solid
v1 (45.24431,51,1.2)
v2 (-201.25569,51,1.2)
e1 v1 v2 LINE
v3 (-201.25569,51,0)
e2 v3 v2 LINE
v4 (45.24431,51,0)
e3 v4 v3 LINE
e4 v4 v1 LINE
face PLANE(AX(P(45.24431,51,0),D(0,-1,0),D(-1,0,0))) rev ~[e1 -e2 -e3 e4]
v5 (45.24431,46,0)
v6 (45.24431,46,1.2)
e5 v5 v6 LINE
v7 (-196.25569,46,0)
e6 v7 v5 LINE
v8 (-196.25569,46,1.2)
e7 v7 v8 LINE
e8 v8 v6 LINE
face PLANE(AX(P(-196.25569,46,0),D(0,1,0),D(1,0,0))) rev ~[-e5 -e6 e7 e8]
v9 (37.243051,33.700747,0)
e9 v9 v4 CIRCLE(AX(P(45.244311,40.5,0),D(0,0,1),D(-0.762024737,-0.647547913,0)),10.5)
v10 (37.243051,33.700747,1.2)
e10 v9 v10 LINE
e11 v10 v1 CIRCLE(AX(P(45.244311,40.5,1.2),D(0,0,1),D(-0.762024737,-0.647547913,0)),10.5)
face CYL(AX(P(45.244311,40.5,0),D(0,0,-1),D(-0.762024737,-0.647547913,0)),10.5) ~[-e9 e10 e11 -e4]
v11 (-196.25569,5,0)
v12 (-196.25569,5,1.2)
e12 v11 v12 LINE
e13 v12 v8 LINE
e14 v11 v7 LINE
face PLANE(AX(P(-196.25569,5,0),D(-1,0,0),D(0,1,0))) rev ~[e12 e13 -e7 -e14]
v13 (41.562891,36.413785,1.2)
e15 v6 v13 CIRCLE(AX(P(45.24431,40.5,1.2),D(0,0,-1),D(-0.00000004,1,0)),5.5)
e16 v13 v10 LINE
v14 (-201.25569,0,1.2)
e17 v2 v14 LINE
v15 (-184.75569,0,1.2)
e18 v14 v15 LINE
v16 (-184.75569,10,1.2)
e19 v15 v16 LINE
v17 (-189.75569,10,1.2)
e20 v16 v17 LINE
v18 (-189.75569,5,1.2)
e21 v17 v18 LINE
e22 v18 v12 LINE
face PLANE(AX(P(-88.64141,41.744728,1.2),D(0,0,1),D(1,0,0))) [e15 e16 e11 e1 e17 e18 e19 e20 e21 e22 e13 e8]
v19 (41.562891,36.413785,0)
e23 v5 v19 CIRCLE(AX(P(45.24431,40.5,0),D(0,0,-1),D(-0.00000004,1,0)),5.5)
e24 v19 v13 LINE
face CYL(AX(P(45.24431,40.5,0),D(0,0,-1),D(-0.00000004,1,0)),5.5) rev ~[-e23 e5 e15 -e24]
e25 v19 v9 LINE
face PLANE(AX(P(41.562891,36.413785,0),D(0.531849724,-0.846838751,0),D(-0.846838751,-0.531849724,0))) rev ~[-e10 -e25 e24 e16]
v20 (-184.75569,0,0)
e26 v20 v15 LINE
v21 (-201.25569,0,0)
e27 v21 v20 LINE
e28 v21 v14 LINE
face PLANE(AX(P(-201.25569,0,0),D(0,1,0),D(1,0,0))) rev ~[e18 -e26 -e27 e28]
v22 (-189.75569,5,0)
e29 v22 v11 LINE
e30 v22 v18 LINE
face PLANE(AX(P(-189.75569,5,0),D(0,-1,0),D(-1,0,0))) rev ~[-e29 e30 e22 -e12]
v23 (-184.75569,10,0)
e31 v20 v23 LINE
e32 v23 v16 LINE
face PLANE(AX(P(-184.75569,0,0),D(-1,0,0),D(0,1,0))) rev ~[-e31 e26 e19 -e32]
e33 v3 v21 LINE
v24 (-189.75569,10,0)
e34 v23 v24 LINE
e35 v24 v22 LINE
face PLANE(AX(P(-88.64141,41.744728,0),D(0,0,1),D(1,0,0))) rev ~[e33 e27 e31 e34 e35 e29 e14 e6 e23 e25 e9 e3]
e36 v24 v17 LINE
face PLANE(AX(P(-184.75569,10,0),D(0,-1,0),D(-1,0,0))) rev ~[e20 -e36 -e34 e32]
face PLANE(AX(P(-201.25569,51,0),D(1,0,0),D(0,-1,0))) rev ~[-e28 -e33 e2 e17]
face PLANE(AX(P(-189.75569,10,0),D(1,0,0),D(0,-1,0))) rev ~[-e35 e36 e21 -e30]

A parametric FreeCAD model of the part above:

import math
import FreeCAD as App
import Part
import Sketcher
from FreeCAD import Vector

doc = App.newDocument("Part")
params = doc.addObject("Spreadsheet::Sheet", "Params")
for row, (alias, value) in enumerate([
    ("sketch1_radius", "5.5 mm"),
    ("sketch1_radius2", "10.5 mm"),
    ("sketch1_width", "5 mm"),
    ("sketch1_height", "51 mm"),
    ("sketch1_height2", "10 mm"),
    ("pad1_length", "1.2 mm"),
], start=1):
    params.set(f"A{row}", alias)
    params.set(f"B{row}", "=" + value)
    params.setAlias(f"B{row}", alias)

body = doc.addObject("PartDesign::Body", "Body")

sketch1 = doc.addObject("Sketcher::SketchObject", "Sketch")
body.addObject(sketch1)
sketch1.AttachmentSupport = (doc.XY_Plane, [""])
sketch1.MapMode = "FlatFace"
sketch1.addGeometry([
    Part.LineSegment(Vector(-201, 51, 0), Vector(-201, 0, 0)),
    Part.LineSegment(Vector(-201, 0, 0), Vector(-185, 0, 0)),
    Part.LineSegment(Vector(-185, 0, 0), Vector(-185, 10, 0)),
    Part.LineSegment(Vector(-185, 10, 0), Vector(-190, 10, 0)),
    Part.LineSegment(Vector(-190, 10, 0), Vector(-190, 5, 0)),
    Part.LineSegment(Vector(-190, 5, 0), Vector(-196, 5, 0)),
    Part.LineSegment(Vector(-196, 5, 0), Vector(-196, 46, 0)),
    Part.LineSegment(Vector(-196, 46, 0), Vector(45, 46, 0)),
    Part.ArcOfCircle(Part.Circle(Vector(45, 40, 0), Vector(0, 0, 1), 6), math.radians(-132), math.radians(90)),
    Part.LineSegment(Vector(42, 36, 0), Vector(37, 34, 0)),
    Part.ArcOfCircle(Part.Circle(Vector(45, 41, 0), Vector(0, 0, 1), 10), math.radians(-140), math.radians(90)),
    Part.LineSegment(Vector(45, 51, 0), Vector(-201, 51, 0)),
], False)
sketch1.addConstraint([
    Sketcher.Constraint("Coincident", 0, 2, 1, 1),
    Sketcher.Constraint("Coincident", 1, 2, 2, 1),
    Sketcher.Constraint("Coincident", 2, 2, 3, 1),
    Sketcher.Constraint("Coincident", 3, 2, 4, 1),
    Sketcher.Constraint("Coincident", 4, 2, 5, 1),
    Sketcher.Constraint("Coincident", 5, 2, 6, 1),
    Sketcher.Constraint("Coincident", 6, 2, 7, 1),
    Sketcher.Constraint("Tangent", 7, 2, 8, 2),
    Sketcher.Constraint("Coincident", 8, 1, 9, 1),
    Sketcher.Constraint("Coincident", 9, 2, 10, 1),
    Sketcher.Constraint("Tangent", 10, 2, 11, 1),
    Sketcher.Constraint("Coincident", 11, 2, 0, 1),
    Sketcher.Constraint("Vertical", 0),
    Sketcher.Constraint("Horizontal", 1),
    Sketcher.Constraint("Vertical", 2),
    Sketcher.Constraint("Horizontal", 3),
    Sketcher.Constraint("Vertical", 4),
    Sketcher.Constraint("Horizontal", 5),
    Sketcher.Constraint("Vertical", 6),
    Sketcher.Constraint("Horizontal", 7),
    Sketcher.Constraint("Horizontal", 11),
    Sketcher.Constraint("Coincident", 10, 3, 8, 3),
    Sketcher.Constraint("PointOnObject", 0, 2, -1),
    Sketcher.Constraint("Equal", 3, 4),
    Sketcher.Constraint("Radius", 8, 5.5),
    Sketcher.Constraint("Radius", 10, 10.5),
    Sketcher.Constraint("DistanceX", 3, 2, 3, 1, 5.0),
    Sketcher.Constraint("DistanceY", 0, 2, 0, 1, 51.0),
    Sketcher.Constraint("DistanceY", 2, 1, 2, 2, 10.0),
    Sketcher.Constraint("DistanceX", 1, 1, 1, 2, 16.5),
    Sketcher.Constraint("DistanceX", 5, 2, 5, 1, 6.5),
    Sketcher.Constraint("DistanceX", 7, 1, 7, 2, 241.5),
    Sketcher.Constraint("DistanceX", -1, 1, 8, 3, 45.24431),
    Sketcher.Constraint("DistanceX", -1, 1, 8, 1, 41.562891),
    Sketcher.Constraint("DistanceX", -1, 1, 9, 2, 37.243051),
])
sketch1.setExpression("Constraints[24]", "Params.sketch1_radius")
sketch1.setExpression("Constraints[25]", "Params.sketch1_radius2")
sketch1.setExpression("Constraints[26]", "Params.sketch1_width")
sketch1.setExpression("Constraints[27]", "Params.sketch1_height")
sketch1.setExpression("Constraints[28]", "Params.sketch1_height2")
pad1 = doc.addObject("PartDesign::Pad", "Pad")
body.addObject(pad1)
pad1.Profile = sketch1
pad1.setExpression("Length", "Params.pad1_length")

doc.recompute()
